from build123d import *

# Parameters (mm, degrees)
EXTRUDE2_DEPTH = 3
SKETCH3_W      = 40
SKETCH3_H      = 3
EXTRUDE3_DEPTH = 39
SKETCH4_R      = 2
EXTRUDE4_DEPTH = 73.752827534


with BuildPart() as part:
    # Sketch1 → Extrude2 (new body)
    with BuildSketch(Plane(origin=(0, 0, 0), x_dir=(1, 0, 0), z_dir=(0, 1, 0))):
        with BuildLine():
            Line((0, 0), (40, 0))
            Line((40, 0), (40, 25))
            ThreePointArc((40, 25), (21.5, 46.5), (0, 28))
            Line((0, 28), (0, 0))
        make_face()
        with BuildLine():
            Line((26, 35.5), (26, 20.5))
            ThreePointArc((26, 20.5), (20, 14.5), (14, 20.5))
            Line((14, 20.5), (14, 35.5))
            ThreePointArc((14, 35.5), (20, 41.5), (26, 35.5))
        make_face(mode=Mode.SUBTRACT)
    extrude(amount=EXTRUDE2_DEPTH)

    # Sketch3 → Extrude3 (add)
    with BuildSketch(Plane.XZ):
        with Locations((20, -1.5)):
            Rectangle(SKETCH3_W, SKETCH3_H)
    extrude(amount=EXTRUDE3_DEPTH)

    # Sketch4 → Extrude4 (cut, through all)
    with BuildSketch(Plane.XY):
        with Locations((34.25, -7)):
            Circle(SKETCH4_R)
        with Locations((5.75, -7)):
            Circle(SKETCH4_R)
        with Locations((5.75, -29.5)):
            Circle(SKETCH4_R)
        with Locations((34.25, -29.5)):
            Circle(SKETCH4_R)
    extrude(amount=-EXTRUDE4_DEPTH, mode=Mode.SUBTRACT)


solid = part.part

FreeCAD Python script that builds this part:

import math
import FreeCAD as App
import Part
import Sketcher

V = App.Vector

doc = App.newDocument("Part")
params = doc.addObject("Spreadsheet::Sheet", "Params")
for row, (alias, value) in enumerate([
    ("sketch1_radius", "6 mm"),
    ("sketch1_width", "40 mm"),
    ("sketch1_height", "25 mm"),
    ("sketch1_height2", "28 mm"),
    ("sketch1_height3", "15 mm"),
    ("pad1_length", "3 mm"),
    ("sketch2_width", "40 mm"),
    ("sketch2_height", "3 mm"),
    ("pad2_length", "39 mm"),
    ("sketch3_diameter", "4 mm"),
], start=1):
    params.set(f"A{row}", alias)
    params.set(f"B{row}", "=" + value)
    params.setAlias(f"B{row}", alias)

body = doc.addObject("PartDesign::Body", "Body")

sketch1 = doc.addObject("Sketcher::SketchObject", "Sketch")
body.addObject(sketch1)
sketch1.AttachmentSupport = (doc.XZ_Plane, [""])
sketch1.MapMode = "FlatFace"
sketch1.addGeometry([
    Part.LineSegment(V(0, 0, 0), V(40, 0, 0)),
    Part.LineSegment(V(40, 0, 0), V(40, -25, 0)),
    Part.ArcOfCircle(Part.Circle(V(20, -26, 0), V(0, 0, 1), 20), math.radians(-176), math.radians(4)),
    Part.LineSegment(V(0, -28, 0), V(0, 0, 0)),
    Part.ArcOfCircle(Part.Circle(V(20, -36, 0), V(0, 0, 1), 6), math.radians(180), math.radians(360)),
    Part.LineSegment(V(26, -36, 0), V(26, -20, 0)),
    Part.ArcOfCircle(Part.Circle(V(20, -20, 0), V(0, 0, 1), 6), math.radians(0), math.radians(180)),
    Part.LineSegment(V(14, -20, 0), V(14, -36, 0)),
], False)
sketch1.addConstraint([
    Sketcher.Constraint("Coincident", 0, 2, 1, 1),
    Sketcher.Constraint("Coincident", 1, 2, 2, 2),
    Sketcher.Constraint("Coincident", 2, 1, 3, 1),
    Sketcher.Constraint("Coincident", 3, 2, 0, 1),
    Sketcher.Constraint("Tangent", 4, 2, 5, 1),
    Sketcher.Constraint("Tangent", 5, 2, 6, 1),
    Sketcher.Constraint("Tangent", 6, 2, 7, 1),
    Sketcher.Constraint("Tangent", 7, 2, 4, 1),
    Sketcher.Constraint("Horizontal", 0),
    Sketcher.Constraint("Vertical", 1),
    Sketcher.Constraint("Vertical", 3),
    Sketcher.Constraint("Vertical", 5),
    Sketcher.Constraint("Vertical", 7),
    Sketcher.Constraint("Coincident", 3, 2, -1, 1),
    Sketcher.Constraint("Vertical", 2, 3, 4, 3),
    Sketcher.Constraint("Radius", 4, 6.0),
    Sketcher.Constraint("DistanceX", 0, 1, 0, 2, 40.0),
    Sketcher.Constraint("DistanceY", 1, 2, 1, 1, 25.0),
    Sketcher.Constraint("DistanceY", 3, 1, 3, 2, 28.0),
    Sketcher.Constraint("DistanceY", 5, 1, 5, 2, 15.0),
    Sketcher.Constraint("DistanceX", -1, 1, 2, 3, 20.0),
    Sketcher.Constraint("DistanceY", 4, 3, 2, 3, 9.0),
])
sketch1.setExpression("Constraints[15]", "Params.sketch1_radius")
sketch1.setExpression("Constraints[16]", "Params.sketch1_width")
sketch1.setExpression("Constraints[17]", "Params.sketch1_height")
sketch1.setExpression("Constraints[18]", "Params.sketch1_height2")
sketch1.setExpression("Constraints[19]", "Params.sketch1_height3")
pad1 = doc.addObject("PartDesign::Pad", "Pad")
body.addObject(pad1)
pad1.Profile = sketch1
pad1.setExpression("Length", "Params.pad1_length")
pad1.Reversed = True

sketch2 = doc.addObject("Sketcher::SketchObject", "Sketch001")
body.addObject(sketch2)
sketch2.AttachmentSupport = (doc.XZ_Plane, [""])
sketch2.MapMode = "FlatFace"
sketch2.addGeometry([
    Part.LineSegment(V(0, 0, 0), V(0, -3, 0)),
    Part.LineSegment(V(0, -3, 0), V(40, -3, 0)),
    Part.LineSegment(V(40, -3, 0), V(40, 0, 0)),
    Part.LineSegment(V(40, 0, 0), V(0, 0, 0)),
], False)
sketch2.addConstraint([
    Sketcher.Constraint("Coincident", 0, 2, 1, 1),
    Sketcher.Constraint("Coincident", 1, 2, 2, 1),
    Sketcher.Constraint("Coincident", 2, 2, 3, 1),
    Sketcher.Constraint("Coincident", 3, 2, 0, 1),
    Sketcher.Constraint("Vertical", 0),
    Sketcher.Constraint("Horizontal", 1),
    Sketcher.Constraint("Vertical", 2),
    Sketcher.Constraint("Horizontal", 3),
    Sketcher.Constraint("Coincident", 3, 2, -1, 1),
    Sketcher.Constraint("DistanceX", 1, 1, 1, 2, 40.0),
    Sketcher.Constraint("DistanceY", 0, 2, 0, 1, 3.0),
])
sketch2.setExpression("Constraints[9]", "Params.sketch2_width")
sketch2.setExpression("Constraints[10]", "Params.sketch2_height")
pad2 = doc.addObject("PartDesign::Pad", "Pad001")
body.addObject(pad2)
pad2.Profile = sketch2
pad2.setExpression("Length", "Params.pad2_length")

sketch3 = doc.addObject("Sketcher::SketchObject", "Sketch002")
body.addObject(sketch3)
sketch3.AttachmentSupport = (doc.XY_Plane, [""])
sketch3.MapMode = "FlatFace"
sketch3.addGeometry([
    Part.Circle(V(34.2, -7, 0), V(0, 0, 1), 2),
    Part.Circle(V(5.8, -7, 0), V(0, 0, 1), 2),
    Part.Circle(V(5.8, -29.5, 0), V(0, 0, 1), 2),
    Part.Circle(V(34.2, -29.5, 0), V(0, 0, 1), 2),
], False)
sketch3.addConstraint([
    Sketcher.Constraint("Equal", 0, 1),
    Sketcher.Constraint("Equal", 1, 2),
    Sketcher.Constraint("Equal", 2, 3),
    Sketcher.Constraint("Horizontal", 0, 3, 1, 3),
    Sketcher.Constraint("Horizontal", 2, 3, 3, 3),
    Sketcher.Constraint("Vertical", 1, 3, 2, 3),
    Sketcher.Constraint("Vertical", 0, 3, 3, 3),
    Sketcher.Constraint("Diameter", 0, 4.0),
    Sketcher.Constraint("DistanceY", 0, 3, -1, 1, 7.0),
    Sketcher.Constraint("DistanceY", 2, 3, -1, 1, 29.5),
    Sketcher.Constraint("DistanceX", 1, 3, 0, 3, 28.5),
    Sketcher.Constraint("DistanceX", -1, 1, 0, 3, 34.25),
])
sketch3.setExpression("Constraints[7]", "Params.sketch3_diameter")
pocket1 = doc.addObject("PartDesign::Pocket", "Pocket")
body.addObject(pocket1)
pocket1.Profile = sketch3
pocket1.Type = "ThroughAll"

doc.recompute()
